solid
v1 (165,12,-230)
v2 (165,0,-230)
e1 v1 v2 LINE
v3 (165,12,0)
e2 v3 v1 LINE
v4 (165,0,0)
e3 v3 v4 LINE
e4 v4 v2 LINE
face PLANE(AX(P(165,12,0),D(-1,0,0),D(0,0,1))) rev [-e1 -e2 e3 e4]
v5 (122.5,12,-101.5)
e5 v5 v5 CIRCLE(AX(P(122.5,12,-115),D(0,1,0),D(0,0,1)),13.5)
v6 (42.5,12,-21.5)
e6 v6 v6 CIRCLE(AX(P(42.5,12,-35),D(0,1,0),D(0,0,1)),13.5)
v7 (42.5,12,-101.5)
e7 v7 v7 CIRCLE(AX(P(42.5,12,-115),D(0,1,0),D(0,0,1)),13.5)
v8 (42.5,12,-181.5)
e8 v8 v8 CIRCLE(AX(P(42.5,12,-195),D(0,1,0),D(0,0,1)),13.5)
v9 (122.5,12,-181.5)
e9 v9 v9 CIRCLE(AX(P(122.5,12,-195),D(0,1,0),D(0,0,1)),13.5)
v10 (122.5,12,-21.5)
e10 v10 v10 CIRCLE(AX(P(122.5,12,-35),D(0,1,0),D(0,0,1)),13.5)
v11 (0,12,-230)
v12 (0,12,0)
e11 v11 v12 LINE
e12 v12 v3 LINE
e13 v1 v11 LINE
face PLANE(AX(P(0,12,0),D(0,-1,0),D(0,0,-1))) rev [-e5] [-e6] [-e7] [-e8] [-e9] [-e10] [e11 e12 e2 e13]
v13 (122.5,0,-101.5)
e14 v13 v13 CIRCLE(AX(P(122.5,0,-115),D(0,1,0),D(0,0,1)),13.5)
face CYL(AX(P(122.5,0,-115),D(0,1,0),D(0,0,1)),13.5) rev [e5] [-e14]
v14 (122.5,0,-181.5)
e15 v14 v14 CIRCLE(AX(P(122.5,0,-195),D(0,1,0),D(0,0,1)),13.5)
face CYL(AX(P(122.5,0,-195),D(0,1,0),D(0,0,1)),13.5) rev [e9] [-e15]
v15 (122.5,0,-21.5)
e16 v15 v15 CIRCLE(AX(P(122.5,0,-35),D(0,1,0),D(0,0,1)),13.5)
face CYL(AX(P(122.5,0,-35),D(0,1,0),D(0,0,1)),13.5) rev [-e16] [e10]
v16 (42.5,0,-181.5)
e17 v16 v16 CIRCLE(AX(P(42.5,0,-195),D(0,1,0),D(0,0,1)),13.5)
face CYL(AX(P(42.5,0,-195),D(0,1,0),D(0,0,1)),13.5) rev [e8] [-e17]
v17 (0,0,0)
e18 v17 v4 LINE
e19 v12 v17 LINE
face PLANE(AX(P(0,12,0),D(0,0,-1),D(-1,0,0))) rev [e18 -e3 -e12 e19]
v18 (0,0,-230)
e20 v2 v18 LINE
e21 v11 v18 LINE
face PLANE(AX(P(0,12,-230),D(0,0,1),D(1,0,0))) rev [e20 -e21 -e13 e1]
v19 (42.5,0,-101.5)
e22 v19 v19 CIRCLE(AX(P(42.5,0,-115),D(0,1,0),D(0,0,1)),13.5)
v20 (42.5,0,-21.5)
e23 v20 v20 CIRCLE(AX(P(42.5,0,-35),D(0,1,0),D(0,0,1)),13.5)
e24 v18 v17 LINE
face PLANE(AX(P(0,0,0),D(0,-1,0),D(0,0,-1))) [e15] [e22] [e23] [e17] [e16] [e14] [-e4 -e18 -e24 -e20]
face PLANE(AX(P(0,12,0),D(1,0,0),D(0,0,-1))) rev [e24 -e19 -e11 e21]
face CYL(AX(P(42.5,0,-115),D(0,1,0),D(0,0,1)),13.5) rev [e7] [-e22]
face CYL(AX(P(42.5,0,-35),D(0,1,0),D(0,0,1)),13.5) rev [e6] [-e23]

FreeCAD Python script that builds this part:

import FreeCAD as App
import Part
import Sketcher

V = App.Vector


def add_polygon(sketch, points):
    """Adds a closed chain of lines whose ends are joined by coincident constraints."""
    first, n = sketch.GeometryCount, len(points)
    for a, b in zip(points, points[1:] + points[:1]):
        sketch.addGeometry(Part.LineSegment(App.Vector(*a, 0), App.Vector(*b, 0)), False)
    for i in range(n):
        sketch.addConstraint(Sketcher.Constraint("Coincident", first + i, 2, first + (i + 1) % n, 1))

doc = App.newDocument("Part")
body = doc.addObject("PartDesign::Body", "Body")

# Sketch on XZ plane
sketch1 = body.newObject("Sketcher::SketchObject", "Sketch")
sketch1.AttachmentSupport = (doc.getObject("XZ_Plane"), [""])
sketch1.MapMode = "FlatFace"
add_polygon(sketch1, [(0, -230), (0, 0), (165, 0), (165, -230)])  # lines 0-3
sketch1.addConstraint([
    Sketcher.Constraint("Vertical", 0),
    Sketcher.Constraint("Horizontal", 1),
    Sketcher.Constraint("Vertical", 2),
    Sketcher.Constraint("Horizontal", 3),
    Sketcher.Constraint("Coincident", 0, 2, -1, 1),
    Sketcher.Constraint("DistanceX", 1, 1, 1, 2, 165.0),
    Sketcher.Constraint("DistanceY", 0, 1, 0, 2, 230.0),
])
pad1 = body.newObject("PartDesign::Pad", "Pad")
pad1.Profile = sketch1
pad1.Length = 12
pad1.Reversed = True

# Sketch on XZ plane
sketch2 = body.newObject("Sketcher::SketchObject", "Sketch001")
sketch2.AttachmentSupport = (doc.getObject("XZ_Plane"), [""])
sketch2.MapMode = "FlatFace"
sketch2.AttachmentOffset = App.Placement(V(0, 0, -12), App.Rotation())
sketch2.addGeometry([
    Part.Circle(V(42.5, -195, 0), V(0, 0, 1), 13.5),  # 0
    Part.Circle(V(122.5, -195, 0), V(0, 0, 1), 13.5),  # 1
    Part.Circle(V(42.5, -115, 0), V(0, 0, 1), 13.5),  # 2
    Part.Circle(V(122.5, -115, 0), V(0, 0, 1), 13.5),  # 3
    Part.Circle(V(42.5, -35, 0), V(0, 0, 1), 13.5),  # 4
    Part.Circle(V(122.5, -35, 0), V(0, 0, 1), 13.5),  # 5
], False)
sketch2.addConstraint([
    Sketcher.Constraint("Equal", 0, 1),
    Sketcher.Constraint("Equal", 1, 2),
    Sketcher.Constraint("Equal", 2, 3),
    Sketcher.Constraint("Equal", 3, 4),
    Sketcher.Constraint("Equal", 4, 5),
    Sketcher.Constraint("Horizontal", 0, 3, 1, 3),
    Sketcher.Constraint("Horizontal", 2, 3, 3, 3),
    Sketcher.Constraint("Horizontal", 4, 3, 5, 3),
    Sketcher.Constraint("Vertical", 0, 3, 2, 3),
    Sketcher.Constraint("Vertical", 1, 3, 3, 3),
    Sketcher.Constraint("Vertical", 2, 3, 4, 3),
    Sketcher.Constraint("Vertical", 3, 3, 5, 3),
    Sketcher.Constraint("Diameter", 0, 27.0),
    Sketcher.Constraint("DistanceY", 0, 3, -1, 1, 195.0),
    Sketcher.Constraint("DistanceY", 2, 3, -1, 1, 115.0),
    Sketcher.Constraint("DistanceY", 4, 3, -1, 1, 35.0),
    Sketcher.Constraint("DistanceX", 0, 3, 1, 3, 80.0),
    Sketcher.Constraint("DistanceX", -1, 1, 0, 3, 42.5),
])
pocket1 = body.newObject("PartDesign::Pocket", "Pocket")
pocket1.Profile = sketch2
pocket1.Type = "ThroughAll"
pocket1.Reversed = True

doc.recompute()
